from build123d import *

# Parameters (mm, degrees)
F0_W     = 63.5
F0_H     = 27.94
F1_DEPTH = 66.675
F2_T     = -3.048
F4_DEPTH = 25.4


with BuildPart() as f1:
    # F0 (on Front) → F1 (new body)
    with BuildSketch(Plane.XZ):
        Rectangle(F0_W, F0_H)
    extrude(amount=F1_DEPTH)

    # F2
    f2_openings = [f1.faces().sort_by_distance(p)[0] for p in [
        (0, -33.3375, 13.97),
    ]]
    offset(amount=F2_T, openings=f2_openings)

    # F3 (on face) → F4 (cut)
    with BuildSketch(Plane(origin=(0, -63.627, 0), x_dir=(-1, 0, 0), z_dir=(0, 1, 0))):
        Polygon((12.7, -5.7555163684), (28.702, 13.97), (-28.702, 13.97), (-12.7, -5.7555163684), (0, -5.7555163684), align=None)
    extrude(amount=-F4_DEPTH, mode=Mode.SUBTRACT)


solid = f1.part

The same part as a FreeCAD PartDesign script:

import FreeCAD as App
import Part
import Sketcher

V = App.Vector
Q = App.Units.Quantity


def faces_at(feature, points):
    """Names of the faces that lie closest to the given points."""
    faces = feature.Shape.Faces
    near = lambda p: min(range(len(faces)), key=lambda i: faces[i].distToShape(Part.Vertex(*p))[0])
    return sorted({f"Face{near(p) + 1}" for p in points})

doc = App.newDocument("Part")
body = doc.addObject("PartDesign::Body", "Body")

sketch1 = doc.addObject("Sketcher::SketchObject", "Sketch")
body.addObject(sketch1)
sketch1.AttachmentSupport = (doc.XZ_Plane, [""])
sketch1.MapMode = "FlatFace"
sketch1.addGeometry([
    Part.LineSegment(V(-31.75, 13.97, 0), V(-31.75, -13.97, 0)),
    Part.LineSegment(V(-31.75, -13.97, 0), V(31.75, -13.97, 0)),
    Part.LineSegment(V(31.75, -13.97, 0), V(31.75, 13.97, 0)),
    Part.LineSegment(V(31.75, 13.97, 0), V(-31.75, 13.97, 0)),
], False)
sketch1.addConstraint([
    Sketcher.Constraint("Coincident", 0, 2, 1, 1),
    Sketcher.Constraint("Coincident", 1, 2, 2, 1),
    Sketcher.Constraint("Coincident", 2, 2, 3, 1),
    Sketcher.Constraint("Coincident", 3, 2, 0, 1),
    Sketcher.Constraint("Vertical", 0),
    Sketcher.Constraint("Horizontal", 1),
    Sketcher.Constraint("Vertical", 2),
    Sketcher.Constraint("Horizontal", 3),
    Sketcher.Constraint("Symmetric", 0, 2, 2, 2, -1, 1),
    Sketcher.Constraint("DistanceX", 1, 1, 1, 2, Q("2.5 in")),
    Sketcher.Constraint("DistanceY", 0, 2, 0, 1, Q("1.1 in")),
])
pad1 = doc.addObject("PartDesign::Pad", "Pad")
body.addObject(pad1)
pad1.Profile = sketch1
pad1.Length = Q("2.625 in")
doc.recompute()

thickness = doc.addObject("PartDesign::Thickness", "Thickness")
body.addObject(thickness)
thickness.Base = (pad1, faces_at(pad1, [(0, -33.337, 13.97)]))
thickness.Value = Q("0.12 in")
thickness.Reversed = True
thickness.Join = "Arc"

sketch2 = doc.addObject("Sketcher::SketchObject", "Sketch001")
body.addObject(sketch2)
sketch2.AttachmentSupport = (doc.XZ_Plane, [""])
sketch2.MapMode = "FlatFace"
sketch2.AttachmentOffset = App.Placement(V(0, 0, 2.505 * 25.4), App.Rotation())
sketch2.addGeometry([
    Part.LineSegment(V(-12.7, -5.755516, 0), V(-28.702, 13.97, 0)),
    Part.LineSegment(V(-28.702, 13.97, 0), V(28.702, 13.97, 0)),
    Part.LineSegment(V(28.702, 13.97, 0), V(12.7, -5.755516, 0)),
    Part.LineSegment(V(12.7, -5.755516, 0), V(-12.7, -5.755516, 0)),
], False)
sketch2.addConstraint([
    Sketcher.Constraint("Coincident", 0, 2, 1, 1),
    Sketcher.Constraint("Coincident", 1, 2, 2, 1),
    Sketcher.Constraint("Coincident", 2, 2, 3, 1),
    Sketcher.Constraint("Coincident", 3, 2, 0, 1),
    Sketcher.Constraint("Horizontal", 1),
    Sketcher.Constraint("Horizontal", 3),
    Sketcher.Constraint("Equal", 0, 2),
    Sketcher.Constraint("DistanceX", 3, 2, 3, 1, Q("1 in")),
    Sketcher.Constraint("Distance", 0, Q("1 in")),
    Sketcher.Constraint("DistanceX", 1, 1, 1, 2, Q("2.26 in")),
    Sketcher.Constraint("DistanceX", -1, 1, 2, 2, Q("0.5 in")),
    Sketcher.Constraint("DistanceY", -1, 1, 0, 2, Q("0.55 in")),
])
pocket1 = doc.addObject("PartDesign::Pocket", "Pocket")
body.addObject(pocket1)
pocket1.Profile = sketch2
pocket1.Length = Q("1 in")
pocket1.Reversed = True

doc.recompute()
